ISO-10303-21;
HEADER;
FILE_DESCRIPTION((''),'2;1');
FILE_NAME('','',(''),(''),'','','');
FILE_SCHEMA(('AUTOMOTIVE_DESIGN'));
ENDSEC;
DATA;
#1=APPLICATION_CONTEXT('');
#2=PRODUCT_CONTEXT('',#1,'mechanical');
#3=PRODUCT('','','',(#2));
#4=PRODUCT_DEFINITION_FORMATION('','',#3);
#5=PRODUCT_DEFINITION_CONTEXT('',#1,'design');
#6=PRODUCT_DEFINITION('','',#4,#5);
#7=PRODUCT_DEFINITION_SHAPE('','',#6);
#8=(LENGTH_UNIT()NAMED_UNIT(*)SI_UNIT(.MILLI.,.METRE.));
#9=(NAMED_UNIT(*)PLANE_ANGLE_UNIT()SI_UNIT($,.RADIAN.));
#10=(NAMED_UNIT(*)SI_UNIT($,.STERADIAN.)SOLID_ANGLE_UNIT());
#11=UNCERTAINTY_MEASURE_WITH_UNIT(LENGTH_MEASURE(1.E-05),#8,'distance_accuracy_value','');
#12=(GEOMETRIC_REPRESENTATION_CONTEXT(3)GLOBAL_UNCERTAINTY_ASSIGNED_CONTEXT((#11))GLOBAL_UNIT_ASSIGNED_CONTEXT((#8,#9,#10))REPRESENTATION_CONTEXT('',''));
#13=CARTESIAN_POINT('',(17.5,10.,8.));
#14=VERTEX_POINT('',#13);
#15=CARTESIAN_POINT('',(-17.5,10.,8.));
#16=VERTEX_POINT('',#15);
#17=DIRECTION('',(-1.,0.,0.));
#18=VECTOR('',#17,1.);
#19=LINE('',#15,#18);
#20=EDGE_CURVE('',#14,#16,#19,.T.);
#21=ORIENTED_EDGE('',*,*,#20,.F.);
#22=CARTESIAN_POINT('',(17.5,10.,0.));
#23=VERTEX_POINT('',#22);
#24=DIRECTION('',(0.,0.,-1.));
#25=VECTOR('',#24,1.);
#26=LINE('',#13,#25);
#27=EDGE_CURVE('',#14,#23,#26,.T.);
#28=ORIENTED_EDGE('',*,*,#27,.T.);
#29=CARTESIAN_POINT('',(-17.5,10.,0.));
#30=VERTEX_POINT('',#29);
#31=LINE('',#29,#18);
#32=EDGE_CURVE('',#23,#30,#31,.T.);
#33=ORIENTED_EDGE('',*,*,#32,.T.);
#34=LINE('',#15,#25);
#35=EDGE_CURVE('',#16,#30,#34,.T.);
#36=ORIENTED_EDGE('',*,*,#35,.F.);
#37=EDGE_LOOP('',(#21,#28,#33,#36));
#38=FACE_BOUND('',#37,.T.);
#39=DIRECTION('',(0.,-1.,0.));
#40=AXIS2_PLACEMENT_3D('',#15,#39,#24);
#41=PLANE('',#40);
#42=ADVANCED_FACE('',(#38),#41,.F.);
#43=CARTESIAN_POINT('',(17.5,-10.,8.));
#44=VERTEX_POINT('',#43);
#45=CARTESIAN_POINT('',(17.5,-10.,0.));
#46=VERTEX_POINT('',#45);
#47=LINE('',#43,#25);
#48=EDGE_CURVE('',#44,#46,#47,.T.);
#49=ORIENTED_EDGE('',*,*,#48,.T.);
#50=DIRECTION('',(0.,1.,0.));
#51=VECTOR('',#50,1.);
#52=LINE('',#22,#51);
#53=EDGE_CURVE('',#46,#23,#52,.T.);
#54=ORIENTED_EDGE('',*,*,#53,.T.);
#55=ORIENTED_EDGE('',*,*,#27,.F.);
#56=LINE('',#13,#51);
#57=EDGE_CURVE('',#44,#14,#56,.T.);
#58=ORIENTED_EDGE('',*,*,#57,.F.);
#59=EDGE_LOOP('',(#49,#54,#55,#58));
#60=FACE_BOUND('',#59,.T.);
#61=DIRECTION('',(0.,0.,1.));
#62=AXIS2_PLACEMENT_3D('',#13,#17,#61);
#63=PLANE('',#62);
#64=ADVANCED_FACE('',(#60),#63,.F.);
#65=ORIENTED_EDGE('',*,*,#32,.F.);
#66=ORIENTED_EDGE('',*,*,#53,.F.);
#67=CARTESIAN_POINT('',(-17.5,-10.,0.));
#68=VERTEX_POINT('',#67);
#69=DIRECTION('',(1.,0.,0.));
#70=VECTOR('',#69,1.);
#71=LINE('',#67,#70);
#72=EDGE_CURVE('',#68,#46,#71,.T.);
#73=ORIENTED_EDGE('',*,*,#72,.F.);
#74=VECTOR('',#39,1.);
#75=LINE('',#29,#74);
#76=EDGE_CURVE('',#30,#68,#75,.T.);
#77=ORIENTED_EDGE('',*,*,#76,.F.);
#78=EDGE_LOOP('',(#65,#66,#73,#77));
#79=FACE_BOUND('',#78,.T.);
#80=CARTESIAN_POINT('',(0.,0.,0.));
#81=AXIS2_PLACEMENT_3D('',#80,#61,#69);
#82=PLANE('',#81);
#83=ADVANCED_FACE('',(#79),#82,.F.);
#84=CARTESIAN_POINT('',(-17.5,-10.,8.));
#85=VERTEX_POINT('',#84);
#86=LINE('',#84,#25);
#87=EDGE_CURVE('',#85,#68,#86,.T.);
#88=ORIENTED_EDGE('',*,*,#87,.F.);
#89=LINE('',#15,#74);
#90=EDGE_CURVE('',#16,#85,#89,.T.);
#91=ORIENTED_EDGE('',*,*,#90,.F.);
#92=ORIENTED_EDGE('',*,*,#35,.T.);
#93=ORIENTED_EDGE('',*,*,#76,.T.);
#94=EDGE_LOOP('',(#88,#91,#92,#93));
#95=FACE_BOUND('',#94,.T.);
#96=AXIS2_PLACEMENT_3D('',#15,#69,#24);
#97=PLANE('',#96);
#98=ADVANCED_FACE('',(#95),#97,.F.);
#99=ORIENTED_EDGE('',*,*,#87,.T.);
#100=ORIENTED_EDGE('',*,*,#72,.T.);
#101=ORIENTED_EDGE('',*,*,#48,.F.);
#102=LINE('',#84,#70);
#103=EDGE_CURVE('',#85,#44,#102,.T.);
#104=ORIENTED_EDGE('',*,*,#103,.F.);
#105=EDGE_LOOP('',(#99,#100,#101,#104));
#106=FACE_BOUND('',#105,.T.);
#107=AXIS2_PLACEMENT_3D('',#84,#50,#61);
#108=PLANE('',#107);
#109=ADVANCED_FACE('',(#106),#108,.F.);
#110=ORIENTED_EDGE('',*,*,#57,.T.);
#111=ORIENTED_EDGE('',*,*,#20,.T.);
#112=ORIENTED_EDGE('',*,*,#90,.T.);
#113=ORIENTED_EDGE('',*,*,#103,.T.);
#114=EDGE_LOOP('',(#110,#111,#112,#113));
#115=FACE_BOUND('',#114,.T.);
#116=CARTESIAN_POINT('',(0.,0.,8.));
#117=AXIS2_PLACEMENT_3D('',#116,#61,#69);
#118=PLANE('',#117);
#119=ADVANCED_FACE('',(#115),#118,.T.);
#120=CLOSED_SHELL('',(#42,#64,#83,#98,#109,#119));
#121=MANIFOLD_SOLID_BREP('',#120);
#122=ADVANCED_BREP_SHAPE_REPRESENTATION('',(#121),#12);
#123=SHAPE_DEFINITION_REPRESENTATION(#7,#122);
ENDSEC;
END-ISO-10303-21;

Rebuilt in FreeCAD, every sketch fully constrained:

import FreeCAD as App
import Part
import Sketcher
Q = App.Units.Quantity


def add_polygon(sketch, points):
    """Adds a closed chain of lines whose ends are joined by coincident constraints."""
    first, n = sketch.GeometryCount, len(points)
    for a, b in zip(points, points[1:] + points[:1]):
        sketch.addGeometry(Part.LineSegment(App.Vector(*a, 0), App.Vector(*b, 0)), False)
    for i in range(n):
        sketch.addConstraint(Sketcher.Constraint("Coincident", first + i, 2, first + (i + 1) % n, 1))

doc = App.newDocument("Part")
body = doc.addObject("PartDesign::Body", "Body")

# Sketch on XY plane
sketch1 = body.newObject("Sketcher::SketchObject", "Sketch")
sketch1.AttachmentSupport = (doc.getObject("XY_Plane"), [""])
sketch1.MapMode = "FlatFace"
add_polygon(sketch1, [(-18, 10), (-18, -10), (18, -10), (18, 10)])  # lines 0-3
sketch1.addConstraint([
    Sketcher.Constraint("Vertical", 0),
    Sketcher.Constraint("Horizontal", 1),
    Sketcher.Constraint("Vertical", 2),
    Sketcher.Constraint("Horizontal", 3),
    Sketcher.Constraint("Symmetric", 0, 2, 2, 2, -1, 1),
    Sketcher.Constraint("DistanceX", 1, 1, 1, 2, Q("35 mm")),
    Sketcher.Constraint("DistanceY", 0, 2, 0, 1, Q("20 mm")),
])
pad1 = body.newObject("PartDesign::Pad", "Pad")
pad1.Profile = sketch1
pad1.Length = 8

doc.recompute()
